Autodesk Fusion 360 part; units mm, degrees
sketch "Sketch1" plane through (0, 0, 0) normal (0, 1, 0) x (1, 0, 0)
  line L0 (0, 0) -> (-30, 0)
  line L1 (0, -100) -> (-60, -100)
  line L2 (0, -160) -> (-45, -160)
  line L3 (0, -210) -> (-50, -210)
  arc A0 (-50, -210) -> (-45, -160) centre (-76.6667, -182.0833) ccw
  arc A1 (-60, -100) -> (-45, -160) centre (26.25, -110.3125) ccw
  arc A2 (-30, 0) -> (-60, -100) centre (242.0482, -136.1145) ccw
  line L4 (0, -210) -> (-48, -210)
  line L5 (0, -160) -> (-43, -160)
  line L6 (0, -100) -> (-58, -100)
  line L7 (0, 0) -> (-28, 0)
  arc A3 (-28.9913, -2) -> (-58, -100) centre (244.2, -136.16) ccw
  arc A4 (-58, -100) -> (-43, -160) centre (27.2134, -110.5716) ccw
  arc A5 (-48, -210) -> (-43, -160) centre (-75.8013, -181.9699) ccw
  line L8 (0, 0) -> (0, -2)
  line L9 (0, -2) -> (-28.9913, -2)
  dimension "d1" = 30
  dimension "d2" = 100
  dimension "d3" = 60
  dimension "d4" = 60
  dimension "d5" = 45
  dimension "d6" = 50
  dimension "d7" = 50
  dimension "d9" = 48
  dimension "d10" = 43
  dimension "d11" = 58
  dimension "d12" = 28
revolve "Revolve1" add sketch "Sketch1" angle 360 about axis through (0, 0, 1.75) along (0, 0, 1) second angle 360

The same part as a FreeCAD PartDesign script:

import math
import FreeCAD as App
import Part
import Sketcher
from FreeCAD import Vector

doc = App.newDocument("Part")
body = doc.addObject("PartDesign::Body", "Body")

# Sketch on XZ plane
sketch1 = body.newObject("Sketcher::SketchObject", "Sketch")
sketch1.AttachmentSupport = (doc.getObject("XZ_Plane"), [""])
sketch1.MapMode = "FlatFace"
sketch1.addGeometry([
    Part.LineSegment(Vector(0, 2, 0), Vector(0, 0, 0)),  # 0
    Part.LineSegment(Vector(0, 0, 0), Vector(-30, 0, 0)),  # 1
    Part.ArcOfCircle(Part.Circle(Vector(242, 136.1, 0), Vector(0, 0, 1), 304.2), math.radians(-173.18), math.radians(-153.42)),  # 2
    Part.ArcOfCircle(Part.Circle(Vector(26.2, 110.3, 0), Vector(0, 0, 1), 86.9), math.radians(145), math.radians(187)),  # 3
    Part.ArcOfCircle(Part.Circle(Vector(-76.7, 182.1, 0), Vector(0, 0, 1), 38.6), math.radians(-35), math.radians(46)),  # 4
    Part.LineSegment(Vector(-50, 210, 0), Vector(-48, 210, 0)),  # 5
    Part.ArcOfCircle(Part.Circle(Vector(-75.8, 182, 0), Vector(0, 0, 1), 39.5), math.radians(-34), math.radians(45)),  # 6
    Part.ArcOfCircle(Part.Circle(Vector(27.2, 110.6, 0), Vector(0, 0, 1), 85.9), math.radians(145), math.radians(187)),  # 7
    Part.ArcOfCircle(Part.Circle(Vector(244.2, 136.2, 0), Vector(0, 0, 1), 304.4), math.radians(-173.18), math.radians(-153.85)),  # 8
    Part.LineSegment(Vector(-29, 2, 0), Vector(0, 2, 0)),  # 9
], False)
sketch1.addConstraint([
    Sketcher.Constraint("Coincident", 0, 2, 1, 1),
    Sketcher.Constraint("Coincident", 1, 2, 2, 2),
    Sketcher.Constraint("Tangent", 2, 1, 3, 2),
    Sketcher.Constraint("Tangent", 3, 1, 4, 1),
    Sketcher.Constraint("Coincident", 4, 2, 5, 1),
    Sketcher.Constraint("Coincident", 5, 2, 6, 2),
    Sketcher.Constraint("Coincident", 6, 1, 7, 1),
    Sketcher.Constraint("Coincident", 7, 2, 8, 1),
    Sketcher.Constraint("Coincident", 8, 2, 9, 1),
    Sketcher.Constraint("Coincident", 9, 2, 0, 1),
    Sketcher.Constraint("Vertical", 0),
    Sketcher.Constraint("Horizontal", 1),
    Sketcher.Constraint("Horizontal", 5),
    Sketcher.Constraint("Horizontal", 9),
    Sketcher.Constraint("Coincident", 0, 2, -1, 1),
    Sketcher.Constraint("Horizontal", 3, 1, 6, 1),
    Sketcher.Constraint("Horizontal", 2, 1, 7, 2),
    Sketcher.Constraint("Equal", 5, 0),
    Sketcher.Constraint("DistanceX", 1, 2, 1, 1, 30.0),
    Sketcher.Constraint("DistanceX", 2, 1, -1, 1, 60.0),
    Sketcher.Constraint("DistanceY", -1, 1, 2, 1, 100.0),
    Sketcher.Constraint("DistanceX", 3, 1, -1, 1, 45.0),
    Sketcher.Constraint("DistanceX", 4, 2, -1, 1, 50.0),
    Sketcher.Constraint("DistanceX", 5, 2, -1, 1, 48.0),
    Sketcher.Constraint("DistanceX", 6, 1, -1, 1, 43.0),
    Sketcher.Constraint("DistanceX", 7, 2, -1, 1, 58.0),
    Sketcher.Constraint("DistanceY", 3, 1, 4, 2, 50.0),
    Sketcher.Constraint("DistanceY", 7, 2, 3, 1, 60.0),
    Sketcher.Constraint("Radius", 6, 39.479),
    Sketcher.Constraint("DistanceX", -1, 1, 8, 3, 244.2),
    Sketcher.Constraint("Radius", 2, 304.1996),
    Sketcher.Constraint("Radius", 7, 85.8667),
    Sketcher.Constraint("Radius", 8, 304.3557),
])
revolution = body.newObject("PartDesign::Revolution", "Revolution")
revolution.Profile = sketch1
revolution.ReferenceAxis = (sketch1, ["V_Axis"])
revolution.Angle = 360

doc.recompute()
